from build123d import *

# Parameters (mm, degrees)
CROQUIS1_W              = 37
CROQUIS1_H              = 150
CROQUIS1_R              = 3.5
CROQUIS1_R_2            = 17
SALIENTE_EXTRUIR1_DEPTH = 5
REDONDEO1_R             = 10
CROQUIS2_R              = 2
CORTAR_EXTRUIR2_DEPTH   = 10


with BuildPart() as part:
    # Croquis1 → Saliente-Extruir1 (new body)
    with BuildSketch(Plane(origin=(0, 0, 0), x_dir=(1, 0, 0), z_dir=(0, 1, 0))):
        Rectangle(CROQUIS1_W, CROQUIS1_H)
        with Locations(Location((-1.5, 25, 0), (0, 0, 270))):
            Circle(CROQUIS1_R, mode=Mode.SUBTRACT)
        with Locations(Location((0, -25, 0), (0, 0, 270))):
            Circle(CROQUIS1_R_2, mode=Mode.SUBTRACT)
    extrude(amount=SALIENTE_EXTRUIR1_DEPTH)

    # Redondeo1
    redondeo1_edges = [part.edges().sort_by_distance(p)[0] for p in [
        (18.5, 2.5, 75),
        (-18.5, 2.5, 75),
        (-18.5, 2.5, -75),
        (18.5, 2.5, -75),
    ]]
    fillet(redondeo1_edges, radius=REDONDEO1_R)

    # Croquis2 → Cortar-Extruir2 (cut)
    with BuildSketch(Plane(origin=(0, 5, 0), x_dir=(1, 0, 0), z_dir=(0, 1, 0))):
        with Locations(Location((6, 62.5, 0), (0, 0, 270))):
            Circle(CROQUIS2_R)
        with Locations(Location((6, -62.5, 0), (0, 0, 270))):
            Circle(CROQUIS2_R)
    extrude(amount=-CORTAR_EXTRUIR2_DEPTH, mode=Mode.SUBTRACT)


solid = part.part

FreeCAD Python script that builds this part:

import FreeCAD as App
import Part
import Sketcher
Q = App.Units.Quantity


def edges_at(feature, points):
    """Names of the edges that pass closest to the given points."""
    edges = feature.Shape.Edges
    near = lambda p: min(range(len(edges)), key=lambda i: edges[i].distToShape(Part.Vertex(*p))[0])
    return sorted({f"Edge{near(p) + 1}" for p in points})

doc = App.newDocument("Part")
body = doc.addObject("PartDesign::Body", "Body")

# Sketch on XZ plane
sketch1 = body.newObject("Sketcher::SketchObject", "Sketch")
sketch1.AttachmentSupport = (doc.getObject("XZ_Plane"), [""])
sketch1.MapMode = "FlatFace"
sketch1.addGeometry(Part.LineSegment(App.Vector(-18.5, -75, 0), App.Vector(-18.5, 75, 0)), False)
sketch1.addGeometry(Part.LineSegment(App.Vector(-18.5, 75, 0), App.Vector(18.5, 75, 0)), False)
sketch1.addGeometry(Part.LineSegment(App.Vector(18.5, 75, 0), App.Vector(18.5, -75, 0)), False)
sketch1.addGeometry(Part.LineSegment(App.Vector(18.5, -75, 0), App.Vector(-18.5, -75, 0)), False)
sketch1.addGeometry(Part.Circle(App.Vector(0, 25, 0), App.Vector(0, 0, 1), 17), False)
sketch1.addGeometry(Part.Circle(App.Vector(-1.5, -25, 0), App.Vector(0, 0, 1), 3.5), False)
sketch1.addConstraint(Sketcher.Constraint("Coincident", 0, 2, 1, 1))
sketch1.addConstraint(Sketcher.Constraint("Coincident", 1, 2, 2, 1))
sketch1.addConstraint(Sketcher.Constraint("Coincident", 2, 2, 3, 1))
sketch1.addConstraint(Sketcher.Constraint("Coincident", 3, 2, 0, 1))
sketch1.addConstraint(Sketcher.Constraint("Vertical", 0))
sketch1.addConstraint(Sketcher.Constraint("Horizontal", 1))
sketch1.addConstraint(Sketcher.Constraint("Vertical", 2))
sketch1.addConstraint(Sketcher.Constraint("Horizontal", 3))
sketch1.addConstraint(Sketcher.Constraint("Symmetric", 0, 2, 2, 2, -1, 1))
sketch1.addConstraint(Sketcher.Constraint("PointOnObject", 4, 3, -2))
sketch1.addConstraint(Sketcher.Constraint("Diameter", 4, Q("34 mm")))
sketch1.addConstraint(Sketcher.Constraint("Diameter", 5, Q("7 mm")))
sketch1.addConstraint(Sketcher.Constraint("DistanceX", 1, 1, 1, 2, Q("37 mm")))
sketch1.addConstraint(Sketcher.Constraint("DistanceY", 0, 1, 0, 2, Q("150 mm")))
sketch1.addConstraint(Sketcher.Constraint("DistanceY", -1, 1, 4, 3, Q("25 mm")))
sketch1.addConstraint(Sketcher.Constraint("DistanceY", 5, 3, -1, 1, Q("25 mm")))
sketch1.addConstraint(Sketcher.Constraint("DistanceX", 0, 2, 5, 3, Q("17 mm")))
pad1 = body.newObject("PartDesign::Pad", "Pad")
pad1.Profile = sketch1
pad1.Length = 5
pad1.Reversed = True
doc.recompute()

fillet = body.newObject("PartDesign::Fillet", "Fillet")
fillet.Base = (pad1, edges_at(pad1, [
    (18.5, 2.5, 75),
    (-18.5, 2.5, 75),
    (-18.5, 2.5, -75),
    (18.5, 2.5, -75),
]))
fillet.Radius = 10

# Sketch on XZ plane
sketch2 = body.newObject("Sketcher::SketchObject", "Sketch001")
sketch2.AttachmentSupport = (doc.getObject("XZ_Plane"), [""])
sketch2.MapMode = "FlatFace"
sketch2.AttachmentOffset = App.Placement(App.Vector(0, 0, -5), App.Rotation())
sketch2.addGeometry(Part.Circle(App.Vector(6, -62.5, 0), App.Vector(0, 0, 1), 2), False)
sketch2.addGeometry(Part.Circle(App.Vector(6, 62.5, 0), App.Vector(0, 0, 1), 2), False)
sketch2.addConstraint(Sketcher.Constraint("Equal", 0, 1))
sketch2.addConstraint(Sketcher.Constraint("Symmetric", 0, 3, 1, 3, -1))
sketch2.addConstraint(Sketcher.Constraint("Diameter", 0, Q("4 mm")))
sketch2.addConstraint(Sketcher.Constraint("DistanceX", -1, 1, 0, 3, Q("6 mm")))
sketch2.addConstraint(Sketcher.Constraint("DistanceY", 0, 3, 1, 3, Q("125 mm")))
pocket1 = body.newObject("PartDesign::Pocket", "Pocket")
pocket1.Profile = sketch2
pocket1.Length = 10
pocket1.Reversed = True

doc.recompute()
